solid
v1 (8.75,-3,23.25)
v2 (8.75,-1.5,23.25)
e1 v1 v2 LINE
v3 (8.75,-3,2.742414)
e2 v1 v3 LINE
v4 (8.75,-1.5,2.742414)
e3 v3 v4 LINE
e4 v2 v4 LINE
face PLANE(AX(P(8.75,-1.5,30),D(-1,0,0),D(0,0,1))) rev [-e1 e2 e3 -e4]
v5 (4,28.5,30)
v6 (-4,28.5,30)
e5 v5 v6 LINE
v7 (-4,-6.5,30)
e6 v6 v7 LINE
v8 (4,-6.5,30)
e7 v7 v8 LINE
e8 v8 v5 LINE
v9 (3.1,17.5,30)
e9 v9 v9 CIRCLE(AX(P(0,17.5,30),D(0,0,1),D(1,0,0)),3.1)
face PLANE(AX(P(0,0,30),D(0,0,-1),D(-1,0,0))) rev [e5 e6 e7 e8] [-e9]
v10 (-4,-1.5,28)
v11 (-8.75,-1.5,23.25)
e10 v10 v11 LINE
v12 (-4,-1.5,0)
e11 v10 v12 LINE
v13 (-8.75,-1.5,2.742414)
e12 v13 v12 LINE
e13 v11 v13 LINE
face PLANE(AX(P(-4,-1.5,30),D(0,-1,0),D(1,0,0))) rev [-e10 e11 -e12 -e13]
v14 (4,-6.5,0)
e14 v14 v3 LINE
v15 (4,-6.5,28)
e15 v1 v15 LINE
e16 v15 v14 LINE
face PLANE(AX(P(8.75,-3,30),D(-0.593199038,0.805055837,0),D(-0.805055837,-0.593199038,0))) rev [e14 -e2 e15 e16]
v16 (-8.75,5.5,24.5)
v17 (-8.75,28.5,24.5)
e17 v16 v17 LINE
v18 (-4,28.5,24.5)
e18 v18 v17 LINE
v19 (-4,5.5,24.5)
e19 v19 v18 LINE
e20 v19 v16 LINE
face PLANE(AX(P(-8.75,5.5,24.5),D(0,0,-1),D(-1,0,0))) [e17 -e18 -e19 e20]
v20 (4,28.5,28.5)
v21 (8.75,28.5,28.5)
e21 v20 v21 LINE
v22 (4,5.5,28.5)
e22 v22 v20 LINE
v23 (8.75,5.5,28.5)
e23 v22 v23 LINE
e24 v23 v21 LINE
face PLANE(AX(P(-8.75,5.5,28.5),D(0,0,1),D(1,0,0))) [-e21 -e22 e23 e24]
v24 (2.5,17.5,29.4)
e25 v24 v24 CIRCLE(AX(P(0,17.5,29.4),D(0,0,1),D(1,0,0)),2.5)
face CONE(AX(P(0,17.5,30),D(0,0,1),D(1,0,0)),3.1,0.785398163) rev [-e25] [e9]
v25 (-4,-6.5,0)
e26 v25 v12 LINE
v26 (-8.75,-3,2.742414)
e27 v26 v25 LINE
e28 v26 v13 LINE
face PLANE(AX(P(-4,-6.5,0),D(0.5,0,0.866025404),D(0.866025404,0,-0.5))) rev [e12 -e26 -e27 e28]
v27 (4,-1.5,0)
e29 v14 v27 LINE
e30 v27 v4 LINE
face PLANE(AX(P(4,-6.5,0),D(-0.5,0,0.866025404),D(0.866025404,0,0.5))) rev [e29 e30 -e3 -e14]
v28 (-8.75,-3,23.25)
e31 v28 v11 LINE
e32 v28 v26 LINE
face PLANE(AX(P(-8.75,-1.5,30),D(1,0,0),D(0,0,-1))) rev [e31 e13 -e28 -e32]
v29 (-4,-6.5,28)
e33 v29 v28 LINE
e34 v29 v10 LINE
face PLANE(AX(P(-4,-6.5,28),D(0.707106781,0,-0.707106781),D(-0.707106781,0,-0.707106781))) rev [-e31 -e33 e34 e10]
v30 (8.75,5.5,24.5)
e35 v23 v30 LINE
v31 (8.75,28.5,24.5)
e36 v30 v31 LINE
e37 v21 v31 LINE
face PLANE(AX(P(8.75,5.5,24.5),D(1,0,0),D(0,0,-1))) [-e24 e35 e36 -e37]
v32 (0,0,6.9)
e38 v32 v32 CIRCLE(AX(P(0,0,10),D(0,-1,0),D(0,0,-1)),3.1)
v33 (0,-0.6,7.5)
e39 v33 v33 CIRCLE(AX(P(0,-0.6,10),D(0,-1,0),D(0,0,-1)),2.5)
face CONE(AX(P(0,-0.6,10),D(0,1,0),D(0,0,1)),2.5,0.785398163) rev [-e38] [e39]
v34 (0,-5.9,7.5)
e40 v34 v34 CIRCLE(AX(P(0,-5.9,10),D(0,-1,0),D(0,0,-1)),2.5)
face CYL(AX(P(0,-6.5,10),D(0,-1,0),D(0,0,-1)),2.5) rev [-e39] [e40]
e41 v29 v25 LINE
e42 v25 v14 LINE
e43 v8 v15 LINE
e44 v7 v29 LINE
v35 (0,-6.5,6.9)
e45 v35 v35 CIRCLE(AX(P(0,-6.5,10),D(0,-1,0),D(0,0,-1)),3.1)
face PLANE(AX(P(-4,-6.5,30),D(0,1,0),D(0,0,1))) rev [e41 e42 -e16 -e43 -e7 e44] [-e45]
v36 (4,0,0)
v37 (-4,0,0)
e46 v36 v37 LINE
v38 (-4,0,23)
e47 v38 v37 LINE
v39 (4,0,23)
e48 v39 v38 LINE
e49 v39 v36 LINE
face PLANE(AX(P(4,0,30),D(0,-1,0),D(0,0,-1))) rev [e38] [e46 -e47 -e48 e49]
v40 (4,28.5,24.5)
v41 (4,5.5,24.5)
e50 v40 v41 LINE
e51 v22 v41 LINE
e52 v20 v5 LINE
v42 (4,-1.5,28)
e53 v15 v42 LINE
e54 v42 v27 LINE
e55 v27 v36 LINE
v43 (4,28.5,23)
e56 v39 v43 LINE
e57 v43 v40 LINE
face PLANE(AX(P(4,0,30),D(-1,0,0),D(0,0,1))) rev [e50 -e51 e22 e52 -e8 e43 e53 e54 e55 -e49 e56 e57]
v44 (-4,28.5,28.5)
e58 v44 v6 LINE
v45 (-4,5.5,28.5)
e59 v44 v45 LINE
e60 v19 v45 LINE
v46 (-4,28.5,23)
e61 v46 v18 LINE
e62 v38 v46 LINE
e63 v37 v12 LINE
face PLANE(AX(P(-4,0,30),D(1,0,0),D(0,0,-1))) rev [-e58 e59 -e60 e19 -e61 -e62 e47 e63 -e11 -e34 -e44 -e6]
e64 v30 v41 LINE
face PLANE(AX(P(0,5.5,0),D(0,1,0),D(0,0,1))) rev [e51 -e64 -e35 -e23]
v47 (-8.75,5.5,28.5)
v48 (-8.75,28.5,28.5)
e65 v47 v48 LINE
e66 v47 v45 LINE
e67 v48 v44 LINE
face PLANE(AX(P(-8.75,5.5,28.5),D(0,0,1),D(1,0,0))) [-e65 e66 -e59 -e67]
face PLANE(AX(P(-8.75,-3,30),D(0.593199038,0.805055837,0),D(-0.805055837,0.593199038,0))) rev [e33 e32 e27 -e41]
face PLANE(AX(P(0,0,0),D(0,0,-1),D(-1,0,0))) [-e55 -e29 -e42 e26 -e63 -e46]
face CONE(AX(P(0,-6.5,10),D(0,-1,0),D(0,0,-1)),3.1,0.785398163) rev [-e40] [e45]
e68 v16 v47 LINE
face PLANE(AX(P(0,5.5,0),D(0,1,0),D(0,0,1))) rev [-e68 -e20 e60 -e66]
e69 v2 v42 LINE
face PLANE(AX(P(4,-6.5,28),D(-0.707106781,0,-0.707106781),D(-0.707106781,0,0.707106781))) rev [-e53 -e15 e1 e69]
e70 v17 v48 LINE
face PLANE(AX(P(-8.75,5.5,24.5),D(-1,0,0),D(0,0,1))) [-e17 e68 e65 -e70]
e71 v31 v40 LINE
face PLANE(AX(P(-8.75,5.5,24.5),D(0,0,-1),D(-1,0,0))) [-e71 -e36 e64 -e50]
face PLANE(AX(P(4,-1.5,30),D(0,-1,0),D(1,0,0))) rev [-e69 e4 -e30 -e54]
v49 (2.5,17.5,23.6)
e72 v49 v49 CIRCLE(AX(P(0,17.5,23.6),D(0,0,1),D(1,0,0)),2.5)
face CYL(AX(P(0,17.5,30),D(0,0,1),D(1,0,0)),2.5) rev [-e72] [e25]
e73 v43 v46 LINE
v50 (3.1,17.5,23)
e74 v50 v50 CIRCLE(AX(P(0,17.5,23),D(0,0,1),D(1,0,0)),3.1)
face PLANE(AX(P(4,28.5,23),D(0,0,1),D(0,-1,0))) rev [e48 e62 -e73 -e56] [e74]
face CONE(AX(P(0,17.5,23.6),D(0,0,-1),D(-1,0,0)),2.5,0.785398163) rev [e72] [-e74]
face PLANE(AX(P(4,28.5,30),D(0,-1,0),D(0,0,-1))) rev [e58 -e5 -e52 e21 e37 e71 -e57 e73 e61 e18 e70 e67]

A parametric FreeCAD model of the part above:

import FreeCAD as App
import Part
import Sketcher

V = App.Vector
Q = App.Units.Quantity


def add_polygon(sketch, points):
    """Adds a closed chain of lines whose ends are joined by coincident constraints."""
    first, n = sketch.GeometryCount, len(points)
    for a, b in zip(points, points[1:] + points[:1]):
        sketch.addGeometry(Part.LineSegment(App.Vector(*a, 0), App.Vector(*b, 0)), False)
    for i in range(n):
        sketch.addConstraint(Sketcher.Constraint("Coincident", first + i, 2, first + (i + 1) % n, 1))

doc = App.newDocument("Part")
body = doc.addObject("PartDesign::Body", "Body")

sketch1 = doc.addObject("Sketcher::SketchObject", "Sketch")
body.addObject(sketch1)
sketch1.AttachmentSupport = (doc.XY_Plane, [""])
sketch1.MapMode = "FlatFace"
add_polygon(sketch1, [(4, 0), (-4, 0), (-4, -1.5), (-8.75, -1.5), (-8.75, -3), (-4, -6.5), (4, -6.5), (8.75, -3), (8.75, -1.5), (4, -1.5)])
sketch1.addConstraint([
    Sketcher.Constraint("Horizontal", 0),
    Sketcher.Constraint("Vertical", 1),
    Sketcher.Constraint("Horizontal", 2),
    Sketcher.Constraint("Vertical", 3),
    Sketcher.Constraint("Horizontal", 5),
    Sketcher.Constraint("Vertical", 7),
    Sketcher.Constraint("Horizontal", 8),
    Sketcher.Constraint("Vertical", 9),
    Sketcher.Constraint("Symmetric", 0, 2, 9, 2, -1, 1),
    Sketcher.Constraint("Symmetric", 3, 2, 6, 2, -2),
    Sketcher.Constraint("Horizontal", 2, 2, 7, 2),
    Sketcher.Constraint("Vertical", 1, 2, 4, 2),
    Sketcher.Constraint("Vertical", 5, 2, 8, 2),
    Sketcher.Constraint("Equal", 1, 3),
    Sketcher.Constraint("DistanceX", 0, 2, 0, 1, 8.0),
    Sketcher.Constraint("DistanceY", 1, 2, 1, 1, 1.5),
    Sketcher.Constraint("DistanceY", 4, 2, 1, 2, 5.0),
    Sketcher.Constraint("DistanceX", 2, 2, 2, 1, 4.75),
])
pad1 = doc.addObject("PartDesign::Pad", "Pad")
body.addObject(pad1)
pad1.Profile = sketch1
pad1.Length = 30

sketch2 = doc.addObject("Sketcher::SketchObject", "Sketch001")
body.addObject(sketch2)
sketch2.AttachmentSupport = (doc.YZ_Plane, [""])
sketch2.MapMode = "FlatFace"
add_polygon(sketch2, [(28.5, 30), (-6.5, 30), (-6.5, 23), (28.5, 23)])
sketch2.addConstraint([
    Sketcher.Constraint("Horizontal", 0),
    Sketcher.Constraint("Vertical", 1),
    Sketcher.Constraint("Horizontal", 2),
    Sketcher.Constraint("Vertical", 3),
    Sketcher.Constraint("DistanceX", 0, 2, 0, 1, 35.0),
    Sketcher.Constraint("DistanceY", 1, 2, 1, 1, 7.0),
    Sketcher.Constraint("DistanceY", -1, 1, 0, 2, 30.0),
    Sketcher.Constraint("DistanceX", 0, 2, -1, 1, 6.5),
])
pad2 = doc.addObject("PartDesign::Pad", "Pad001")
body.addObject(pad2)
pad2.Profile = sketch2
pad2.Length = 8
pad2.Midplane = True

sketch3 = doc.addObject("Sketcher::SketchObject", "Sketch002")
body.addObject(sketch3)
sketch3.AttachmentSupport = (doc.XZ_Plane, [""])
sketch3.MapMode = "FlatFace"
sketch3.AttachmentOffset = App.Placement(V(0, 0, 1.5), App.Rotation())
add_polygon(sketch3, [(-8.75, 2.742414), (-4, 0), (-8.75, 0)])
add_polygon(sketch3, [(-4, 28), (-8.75, 23.25), (-8.75, 30), (-4, 30)])
add_polygon(sketch3, [(4, 28), (4, 30), (8.75, 30), (8.75, 23.25)])
add_polygon(sketch3, [(8.75, 0), (4, 0), (8.75, 2.742414)])
sketch3.addConstraint([
    Sketcher.Constraint("Horizontal", 1),
    Sketcher.Constraint("Vertical", 2),
    Sketcher.Constraint("Vertical", 4),
    Sketcher.Constraint("Horizontal", 5),
    Sketcher.Constraint("Vertical", 6),
    Sketcher.Constraint("Vertical", 7),
    Sketcher.Constraint("Horizontal", 8),
    Sketcher.Constraint("Vertical", 9),
    Sketcher.Constraint("Horizontal", 11),
    Sketcher.Constraint("Vertical", 13),
    Sketcher.Constraint("Symmetric", 0, 2, 11, 2, -1, 1),
    Sketcher.Constraint("Symmetric", 5, 2, 7, 2, -2),
    Sketcher.Constraint("Symmetric", 3, 2, 9, 2, -2),
    Sketcher.Constraint("Symmetric", 2, 2, 12, 2, -2),
    Sketcher.Constraint("PointOnObject", 0, 2, -1),
    Sketcher.Constraint("Perpendicular", 3, 10),
    Sketcher.Constraint("Horizontal", 6, 2, 10, 2),
    Sketcher.Constraint("Vertical", 2, 2, 3, 2),
    Sketcher.Constraint("Vertical", 0, 2, 5, 2),
    Sketcher.Constraint("DistanceY", 6, 2, 6, 1, 2.0),
    Sketcher.Constraint("Angle", 0, Q("-30 deg")),
    Sketcher.Constraint("DistanceX", 0, 2, -1, 1, 4.0),
    Sketcher.Constraint("DistanceY", -1, 1, 4, 2, 30.0),
    Sketcher.Constraint("DistanceX", 1, 2, 1, 1, 4.75),
])
pocket1 = doc.addObject("PartDesign::Pocket", "Pocket")
body.addObject(pocket1)
pocket1.Profile = sketch3
pocket1.Type = "ThroughAll"
pocket1.Reversed = True

sketch4 = doc.addObject("Sketcher::SketchObject", "Sketch003")
body.addObject(sketch4)
sketch4.AttachmentSupport = (doc.XZ_Plane, [""])
sketch4.MapMode = "FlatFace"
sketch4.AttachmentOffset = App.Placement(V(0, 0, -28.5), App.Rotation())
add_polygon(sketch4, [(-8.75, 24.5), (-8.75, 28.5), (8.75, 28.5), (8.75, 24.5)])
sketch4.addConstraint([
    Sketcher.Constraint("Vertical", 0),
    Sketcher.Constraint("Horizontal", 1),
    Sketcher.Constraint("Vertical", 2),
    Sketcher.Constraint("Horizontal", 3),
    Sketcher.Constraint("DistanceY", 0, 1, 0, 2, 4.0),
    Sketcher.Constraint("DistanceX", 1, 1, 1, 2, 17.5),
    Sketcher.Constraint("DistanceY", -1, 1, 0, 2, 28.5),
    Sketcher.Constraint("DistanceX", 0, 2, -1, 1, 8.75),
])
pad3 = doc.addObject("PartDesign::Pad", "Pad002")
body.addObject(pad3)
pad3.Profile = sketch4
pad3.Length = 23

sketch5 = doc.addObject("Sketcher::SketchObject", "Sketch004")
body.addObject(sketch5)
sketch5.AttachmentSupport = (doc.YZ_Plane, [""])
sketch5.MapMode = "FlatFace"
add_polygon(sketch5, [(0, 10), (-6.5, 10), (-6.5, 6.9), (-5.9, 7.5), (-0.6, 7.5), (0, 6.9)])
sketch5.addGeometry(Part.LineSegment(V(-6.5, 10, 0), V(0, 10, 0)), True)
sketch5.addConstraint([
    Sketcher.Constraint("Horizontal", 0),
    Sketcher.Constraint("Vertical", 1),
    Sketcher.Constraint("Horizontal", 3),
    Sketcher.Constraint("Vertical", 5),
    Sketcher.Constraint("Horizontal", 6),
    Sketcher.Constraint("Coincident", 6, 1, 0, 2),
    Sketcher.Constraint("PointOnObject", 4, 2, -2),
    Sketcher.Constraint("PointOnObject", 6, 2, -2),
    Sketcher.Constraint("Perpendicular", 2, 4),
    Sketcher.Constraint("Horizontal", 1, 2, 4, 2),
    Sketcher.Constraint("Equal", 2, 4),
    Sketcher.Constraint("DistanceX", 0, 2, 0, 1, 6.5),
    Sketcher.Constraint("DistanceX", 3, 1, 3, 2, 5.3),
    Sketcher.Constraint("DistanceY", 1, 2, 1, 1, 3.1),
    Sketcher.Constraint("DistanceY", -1, 1, 0, 2, 10.0),
])
groove = doc.addObject("PartDesign::Groove", "Groove")
body.addObject(groove)
groove.Profile = sketch5
groove.ReferenceAxis = (sketch5, ["Axis0"])
groove.Angle = 360

sketch6 = doc.addObject("Sketcher::SketchObject", "Sketch005")
body.addObject(sketch6)
sketch6.AttachmentSupport = (doc.YZ_Plane, [""])
sketch6.MapMode = "FlatFace"
add_polygon(sketch6, [(17.5, 23), (17.5, 30), (14.4, 30), (15, 29.4), (15, 23.6), (14.4, 23)])
sketch6.addGeometry(Part.LineSegment(V(17.5, 30, 0), V(17.5, 23, 0)), True)
sketch6.addConstraint([
    Sketcher.Constraint("Vertical", 0),
    Sketcher.Constraint("Horizontal", 1),
    Sketcher.Constraint("Vertical", 3),
    Sketcher.Constraint("Horizontal", 5),
    Sketcher.Constraint("Vertical", 6),
    Sketcher.Constraint("Coincident", 6, 1, 0, 2),
    Sketcher.Constraint("Perpendicular", 2, 4),
    Sketcher.Constraint("Horizontal", 4, 2, 6, 2),
    Sketcher.Constraint("Vertical", 1, 2, 4, 2),
    Sketcher.Constraint("Equal", 2, 4),
    Sketcher.Constraint("DistanceY", 0, 1, 0, 2, 7.0),
    Sketcher.Constraint("DistanceX", 1, 2, 1, 1, 3.1),
    Sketcher.Constraint("DistanceY", 3, 2, 3, 1, 5.8),
    Sketcher.Constraint("DistanceY", -1, 1, 0, 2, 30.0),
    Sketcher.Constraint("DistanceX", -1, 1, 2, 2, 15.0),
])
groove2 = doc.addObject("PartDesign::Groove", "Groove001")
body.addObject(groove2)
groove2.Profile = sketch6
groove2.ReferenceAxis = (sketch6, ["Axis0"])
groove2.Angle = 360

doc.recompute()
